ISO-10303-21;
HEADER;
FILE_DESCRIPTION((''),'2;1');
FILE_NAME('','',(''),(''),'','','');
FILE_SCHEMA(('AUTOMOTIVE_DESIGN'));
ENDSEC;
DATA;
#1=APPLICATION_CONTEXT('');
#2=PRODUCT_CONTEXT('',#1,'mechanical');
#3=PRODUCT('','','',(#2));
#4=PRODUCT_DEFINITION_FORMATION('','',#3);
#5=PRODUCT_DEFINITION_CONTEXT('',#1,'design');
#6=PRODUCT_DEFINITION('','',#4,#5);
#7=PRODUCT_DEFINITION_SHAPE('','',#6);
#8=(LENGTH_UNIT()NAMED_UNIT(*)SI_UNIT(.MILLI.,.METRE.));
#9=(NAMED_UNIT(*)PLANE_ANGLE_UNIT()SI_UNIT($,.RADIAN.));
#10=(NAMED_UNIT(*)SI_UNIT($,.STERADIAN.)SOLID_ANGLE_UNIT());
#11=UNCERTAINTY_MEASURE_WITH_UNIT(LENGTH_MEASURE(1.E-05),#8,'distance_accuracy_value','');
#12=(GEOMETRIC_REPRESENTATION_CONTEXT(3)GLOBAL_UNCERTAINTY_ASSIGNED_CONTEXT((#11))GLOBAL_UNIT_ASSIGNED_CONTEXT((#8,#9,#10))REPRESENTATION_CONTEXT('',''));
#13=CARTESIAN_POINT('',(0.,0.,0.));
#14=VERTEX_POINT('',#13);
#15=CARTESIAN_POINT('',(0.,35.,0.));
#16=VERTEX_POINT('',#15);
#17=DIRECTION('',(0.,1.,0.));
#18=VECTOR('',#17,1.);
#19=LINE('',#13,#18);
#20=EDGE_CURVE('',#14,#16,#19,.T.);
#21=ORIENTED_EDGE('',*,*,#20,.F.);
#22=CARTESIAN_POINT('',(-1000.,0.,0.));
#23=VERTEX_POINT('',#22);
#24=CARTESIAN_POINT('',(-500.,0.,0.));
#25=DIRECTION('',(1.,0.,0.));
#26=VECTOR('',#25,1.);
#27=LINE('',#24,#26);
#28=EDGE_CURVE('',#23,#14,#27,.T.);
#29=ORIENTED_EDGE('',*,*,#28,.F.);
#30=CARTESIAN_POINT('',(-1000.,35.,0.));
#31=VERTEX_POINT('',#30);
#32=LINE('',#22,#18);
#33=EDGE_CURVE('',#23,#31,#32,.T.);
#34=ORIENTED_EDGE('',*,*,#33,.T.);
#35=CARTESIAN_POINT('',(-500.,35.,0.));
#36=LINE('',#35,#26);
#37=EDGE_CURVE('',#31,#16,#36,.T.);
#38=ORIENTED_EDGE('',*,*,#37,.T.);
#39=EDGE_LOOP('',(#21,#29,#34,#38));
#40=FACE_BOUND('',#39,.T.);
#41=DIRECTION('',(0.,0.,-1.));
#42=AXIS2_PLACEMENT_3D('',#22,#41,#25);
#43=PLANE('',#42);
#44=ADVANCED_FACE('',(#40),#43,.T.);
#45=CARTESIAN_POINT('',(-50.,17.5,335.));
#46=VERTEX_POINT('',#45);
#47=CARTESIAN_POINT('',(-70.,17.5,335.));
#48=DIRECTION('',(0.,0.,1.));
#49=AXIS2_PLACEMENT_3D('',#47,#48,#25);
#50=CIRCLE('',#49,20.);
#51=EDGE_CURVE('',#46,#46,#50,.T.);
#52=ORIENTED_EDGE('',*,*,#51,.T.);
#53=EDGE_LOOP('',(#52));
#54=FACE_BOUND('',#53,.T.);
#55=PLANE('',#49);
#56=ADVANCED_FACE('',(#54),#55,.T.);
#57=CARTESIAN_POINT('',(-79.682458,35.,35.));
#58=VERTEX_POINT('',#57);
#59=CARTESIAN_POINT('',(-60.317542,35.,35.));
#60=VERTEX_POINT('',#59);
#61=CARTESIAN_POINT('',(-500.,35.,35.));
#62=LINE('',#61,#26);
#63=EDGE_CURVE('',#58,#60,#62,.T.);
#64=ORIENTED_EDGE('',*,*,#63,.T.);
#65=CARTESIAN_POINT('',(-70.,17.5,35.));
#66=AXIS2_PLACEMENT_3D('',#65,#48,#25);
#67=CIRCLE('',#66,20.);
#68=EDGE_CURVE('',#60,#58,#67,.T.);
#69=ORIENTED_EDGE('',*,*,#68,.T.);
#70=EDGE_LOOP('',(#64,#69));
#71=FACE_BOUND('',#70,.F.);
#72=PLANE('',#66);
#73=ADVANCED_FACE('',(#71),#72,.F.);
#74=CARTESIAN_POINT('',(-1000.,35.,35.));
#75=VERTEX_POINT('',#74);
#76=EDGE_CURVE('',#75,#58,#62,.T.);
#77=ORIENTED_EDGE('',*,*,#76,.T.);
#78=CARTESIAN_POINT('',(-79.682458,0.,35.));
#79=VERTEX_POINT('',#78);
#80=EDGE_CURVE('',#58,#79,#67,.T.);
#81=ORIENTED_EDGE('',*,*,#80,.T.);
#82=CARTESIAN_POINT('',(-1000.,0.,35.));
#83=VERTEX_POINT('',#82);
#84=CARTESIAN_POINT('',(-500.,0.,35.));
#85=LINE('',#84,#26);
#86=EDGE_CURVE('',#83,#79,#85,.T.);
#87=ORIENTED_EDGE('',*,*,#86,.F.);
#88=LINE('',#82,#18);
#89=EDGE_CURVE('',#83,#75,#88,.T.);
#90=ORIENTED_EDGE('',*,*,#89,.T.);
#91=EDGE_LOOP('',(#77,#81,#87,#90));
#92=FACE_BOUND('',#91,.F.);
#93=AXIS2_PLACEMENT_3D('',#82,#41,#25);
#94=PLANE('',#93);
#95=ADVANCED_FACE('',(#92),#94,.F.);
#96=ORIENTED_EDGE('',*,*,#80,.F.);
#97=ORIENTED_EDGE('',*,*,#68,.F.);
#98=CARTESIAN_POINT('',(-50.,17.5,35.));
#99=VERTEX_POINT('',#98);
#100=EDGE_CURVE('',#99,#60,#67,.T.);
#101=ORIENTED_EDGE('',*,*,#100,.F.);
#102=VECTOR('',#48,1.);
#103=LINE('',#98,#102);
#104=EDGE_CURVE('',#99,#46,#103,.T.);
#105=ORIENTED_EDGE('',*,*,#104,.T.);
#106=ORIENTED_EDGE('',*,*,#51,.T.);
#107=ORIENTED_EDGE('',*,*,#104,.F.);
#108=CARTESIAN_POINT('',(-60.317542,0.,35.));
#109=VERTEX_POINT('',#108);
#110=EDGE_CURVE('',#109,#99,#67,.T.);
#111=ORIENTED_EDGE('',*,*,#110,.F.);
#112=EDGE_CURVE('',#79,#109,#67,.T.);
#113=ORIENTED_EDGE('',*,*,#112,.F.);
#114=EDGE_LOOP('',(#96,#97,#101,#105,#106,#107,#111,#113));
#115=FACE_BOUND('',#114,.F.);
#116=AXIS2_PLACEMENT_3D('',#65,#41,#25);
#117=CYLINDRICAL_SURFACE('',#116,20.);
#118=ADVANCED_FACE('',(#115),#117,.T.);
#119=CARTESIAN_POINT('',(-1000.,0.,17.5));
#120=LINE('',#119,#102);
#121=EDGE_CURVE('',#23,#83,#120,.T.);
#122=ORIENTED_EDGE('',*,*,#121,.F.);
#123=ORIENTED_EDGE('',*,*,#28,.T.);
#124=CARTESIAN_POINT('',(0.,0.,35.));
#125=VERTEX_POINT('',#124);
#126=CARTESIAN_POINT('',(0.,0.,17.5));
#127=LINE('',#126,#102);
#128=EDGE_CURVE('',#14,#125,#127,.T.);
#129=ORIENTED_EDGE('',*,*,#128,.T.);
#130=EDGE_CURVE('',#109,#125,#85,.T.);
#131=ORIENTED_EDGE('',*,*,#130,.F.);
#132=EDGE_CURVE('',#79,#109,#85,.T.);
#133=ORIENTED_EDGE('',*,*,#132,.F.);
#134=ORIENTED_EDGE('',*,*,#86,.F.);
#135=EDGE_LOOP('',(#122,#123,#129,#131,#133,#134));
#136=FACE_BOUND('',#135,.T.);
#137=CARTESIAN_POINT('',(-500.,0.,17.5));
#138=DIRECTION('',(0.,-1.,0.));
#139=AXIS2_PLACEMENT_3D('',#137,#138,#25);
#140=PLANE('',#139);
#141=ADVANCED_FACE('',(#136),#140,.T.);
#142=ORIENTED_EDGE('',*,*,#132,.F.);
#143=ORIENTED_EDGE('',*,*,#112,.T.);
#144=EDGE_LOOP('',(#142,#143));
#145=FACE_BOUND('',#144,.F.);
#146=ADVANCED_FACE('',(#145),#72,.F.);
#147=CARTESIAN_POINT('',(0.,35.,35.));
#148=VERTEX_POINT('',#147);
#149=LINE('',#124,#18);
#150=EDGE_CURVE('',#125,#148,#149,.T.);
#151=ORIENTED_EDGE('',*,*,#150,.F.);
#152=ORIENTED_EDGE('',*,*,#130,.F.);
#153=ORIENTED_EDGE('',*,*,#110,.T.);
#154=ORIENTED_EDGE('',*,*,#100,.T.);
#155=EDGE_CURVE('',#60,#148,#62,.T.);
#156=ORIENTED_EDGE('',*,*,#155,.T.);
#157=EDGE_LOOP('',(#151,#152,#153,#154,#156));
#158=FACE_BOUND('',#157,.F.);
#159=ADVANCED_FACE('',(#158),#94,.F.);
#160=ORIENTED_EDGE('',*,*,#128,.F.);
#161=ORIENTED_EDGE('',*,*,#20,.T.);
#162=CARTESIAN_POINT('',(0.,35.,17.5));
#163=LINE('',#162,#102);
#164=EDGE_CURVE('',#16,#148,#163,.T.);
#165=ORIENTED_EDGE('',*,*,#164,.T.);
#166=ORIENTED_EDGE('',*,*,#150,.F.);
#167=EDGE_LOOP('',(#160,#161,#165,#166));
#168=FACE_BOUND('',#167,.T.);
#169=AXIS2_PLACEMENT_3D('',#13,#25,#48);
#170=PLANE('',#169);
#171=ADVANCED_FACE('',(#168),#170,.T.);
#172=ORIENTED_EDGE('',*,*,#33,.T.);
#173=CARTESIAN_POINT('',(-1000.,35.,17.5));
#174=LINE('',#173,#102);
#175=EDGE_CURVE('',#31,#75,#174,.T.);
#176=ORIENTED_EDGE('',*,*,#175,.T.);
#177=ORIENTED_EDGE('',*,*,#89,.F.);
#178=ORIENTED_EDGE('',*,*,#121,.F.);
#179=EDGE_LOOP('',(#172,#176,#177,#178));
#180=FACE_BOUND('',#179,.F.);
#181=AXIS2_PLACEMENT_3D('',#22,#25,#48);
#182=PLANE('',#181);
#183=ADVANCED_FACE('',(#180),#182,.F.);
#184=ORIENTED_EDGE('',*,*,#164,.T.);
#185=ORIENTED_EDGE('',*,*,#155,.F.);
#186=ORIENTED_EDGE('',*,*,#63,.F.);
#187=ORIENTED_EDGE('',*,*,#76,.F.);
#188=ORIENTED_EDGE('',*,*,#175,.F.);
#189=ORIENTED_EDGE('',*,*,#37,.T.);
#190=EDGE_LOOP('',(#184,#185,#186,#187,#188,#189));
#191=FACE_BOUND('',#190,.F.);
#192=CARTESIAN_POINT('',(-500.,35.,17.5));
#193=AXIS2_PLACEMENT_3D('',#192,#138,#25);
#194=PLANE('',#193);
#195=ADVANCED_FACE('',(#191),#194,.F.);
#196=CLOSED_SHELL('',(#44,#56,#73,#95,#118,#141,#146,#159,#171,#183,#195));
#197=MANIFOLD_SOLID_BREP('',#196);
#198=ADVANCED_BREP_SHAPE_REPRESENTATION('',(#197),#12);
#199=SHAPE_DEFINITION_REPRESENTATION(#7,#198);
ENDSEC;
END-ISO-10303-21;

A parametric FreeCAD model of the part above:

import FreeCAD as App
import Part
import Sketcher

V = App.Vector
Q = App.Units.Quantity

doc = App.newDocument("Part")
params = doc.addObject("Spreadsheet::Sheet", "Params")
for row, (alias, value) in enumerate([
    ("sketch1_width", "1000 mm"),
    ("sketch1_height", "35 mm"),
    ("pad1_length", "35 mm"),
    ("sketch2_diameter", "40 mm"),
    ("pad2_length", "300 mm"),
], start=1):
    params.set(f"A{row}", alias)
    params.set(f"B{row}", "=" + value)
    params.setAlias(f"B{row}", alias)

body = doc.addObject("PartDesign::Body", "Body")

# Sketch on XZ plane
sketch1 = doc.addObject("Sketcher::SketchObject", "Sketch")
body.addObject(sketch1)
sketch1.AttachmentSupport = (doc.XZ_Plane, [""])
sketch1.MapMode = "FlatFace"
sketch1.addGeometry([
    Part.LineSegment(V(-1000, 35, 0), V(-1000, 0, 0)),
    Part.LineSegment(V(-1000, 0, 0), V(0, 0, 0)),
    Part.LineSegment(V(0, 0, 0), V(0, 35, 0)),
    Part.LineSegment(V(0, 35, 0), V(-1000, 35, 0)),
], False)
sketch1.addConstraint([
    Sketcher.Constraint("Coincident", 0, 2, 1, 1),
    Sketcher.Constraint("Coincident", 1, 2, 2, 1),
    Sketcher.Constraint("Coincident", 2, 2, 3, 1),
    Sketcher.Constraint("Coincident", 3, 2, 0, 1),
    Sketcher.Constraint("Vertical", 0),
    Sketcher.Constraint("Horizontal", 1),
    Sketcher.Constraint("Vertical", 2),
    Sketcher.Constraint("Horizontal", 3),
    Sketcher.Constraint("Coincident", 1, 2, -1, 1),
    Sketcher.Constraint("DistanceX", 1, 1, 1, 2, Q("1000 mm")),
    Sketcher.Constraint("DistanceY", 0, 2, 0, 1, Q("35 mm")),
])
sketch1.setExpression("Constraints[9]", "Params.sketch1_width")
sketch1.setExpression("Constraints[10]", "Params.sketch1_height")
pad1 = doc.addObject("PartDesign::Pad", "Pad")
body.addObject(pad1)
pad1.Profile = sketch1
pad1.setExpression("Length", "Params.pad1_length")
pad1.Reversed = True

# Sketch on XY plane
sketch2 = doc.addObject("Sketcher::SketchObject", "Sketch001")
body.addObject(sketch2)
sketch2.AttachmentSupport = (doc.XY_Plane, [""])
sketch2.MapMode = "FlatFace"
sketch2.AttachmentOffset = App.Placement(V(0, 0, 35), App.Rotation())
sketch2.addGeometry(Part.Circle(V(-70, 17.5, 0), V(0, 0, 1), 20), False)
sketch2.addConstraint([
    Sketcher.Constraint("Diameter", 0, Q("40 mm")),
    Sketcher.Constraint("DistanceX", 0, 3, -1, 1, Q("70 mm")),
    Sketcher.Constraint("DistanceY", -1, 1, 0, 3, Q("17.5 mm")),
])
sketch2.setExpression("Constraints[0]", "Params.sketch2_diameter")
pad2 = doc.addObject("PartDesign::Pad", "Pad001")
body.addObject(pad2)
pad2.Profile = sketch2
pad2.setExpression("Length", "Params.pad2_length")

doc.recompute()
